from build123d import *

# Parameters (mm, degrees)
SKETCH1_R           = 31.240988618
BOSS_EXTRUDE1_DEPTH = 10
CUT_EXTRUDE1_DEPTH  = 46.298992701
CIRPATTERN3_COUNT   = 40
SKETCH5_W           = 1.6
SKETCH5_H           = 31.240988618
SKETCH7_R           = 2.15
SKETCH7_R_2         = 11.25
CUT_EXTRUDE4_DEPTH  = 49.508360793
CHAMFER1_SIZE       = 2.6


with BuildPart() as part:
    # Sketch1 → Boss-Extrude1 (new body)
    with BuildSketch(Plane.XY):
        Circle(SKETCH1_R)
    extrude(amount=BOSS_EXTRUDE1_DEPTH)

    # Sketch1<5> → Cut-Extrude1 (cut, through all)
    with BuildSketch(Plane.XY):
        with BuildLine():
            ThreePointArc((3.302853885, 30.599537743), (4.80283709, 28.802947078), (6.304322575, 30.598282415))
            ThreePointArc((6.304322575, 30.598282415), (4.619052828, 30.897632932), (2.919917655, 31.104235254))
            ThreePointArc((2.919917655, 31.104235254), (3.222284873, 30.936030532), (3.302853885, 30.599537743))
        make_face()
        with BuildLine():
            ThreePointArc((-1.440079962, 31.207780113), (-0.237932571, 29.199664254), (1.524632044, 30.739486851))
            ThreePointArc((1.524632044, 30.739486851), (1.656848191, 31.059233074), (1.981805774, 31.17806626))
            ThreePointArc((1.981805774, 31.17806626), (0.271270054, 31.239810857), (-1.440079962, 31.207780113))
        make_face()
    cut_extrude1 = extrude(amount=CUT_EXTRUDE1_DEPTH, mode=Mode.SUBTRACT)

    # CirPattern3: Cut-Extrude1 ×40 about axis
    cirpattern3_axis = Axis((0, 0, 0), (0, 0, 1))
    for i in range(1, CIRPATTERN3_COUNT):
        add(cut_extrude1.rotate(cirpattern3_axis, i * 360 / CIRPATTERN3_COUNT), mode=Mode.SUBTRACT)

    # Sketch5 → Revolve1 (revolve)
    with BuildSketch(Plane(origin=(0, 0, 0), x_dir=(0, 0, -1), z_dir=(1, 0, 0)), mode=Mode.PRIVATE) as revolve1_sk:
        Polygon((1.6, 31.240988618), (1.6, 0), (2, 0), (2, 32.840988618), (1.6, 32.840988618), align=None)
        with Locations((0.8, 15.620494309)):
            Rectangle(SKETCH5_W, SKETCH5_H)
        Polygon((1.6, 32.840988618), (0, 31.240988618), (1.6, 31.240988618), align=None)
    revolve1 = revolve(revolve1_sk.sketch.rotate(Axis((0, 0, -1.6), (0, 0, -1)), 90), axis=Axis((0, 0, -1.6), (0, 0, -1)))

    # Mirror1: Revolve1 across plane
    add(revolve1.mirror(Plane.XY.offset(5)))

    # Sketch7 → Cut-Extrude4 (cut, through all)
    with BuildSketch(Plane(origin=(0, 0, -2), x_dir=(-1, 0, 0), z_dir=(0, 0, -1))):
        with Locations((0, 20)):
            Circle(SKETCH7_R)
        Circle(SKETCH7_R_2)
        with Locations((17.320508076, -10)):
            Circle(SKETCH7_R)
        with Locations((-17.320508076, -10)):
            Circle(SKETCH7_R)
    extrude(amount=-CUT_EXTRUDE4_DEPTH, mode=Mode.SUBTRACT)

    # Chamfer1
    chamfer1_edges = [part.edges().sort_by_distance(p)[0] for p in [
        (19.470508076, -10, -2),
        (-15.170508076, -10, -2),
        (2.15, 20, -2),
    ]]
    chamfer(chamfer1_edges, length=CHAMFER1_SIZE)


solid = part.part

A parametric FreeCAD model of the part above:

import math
import FreeCAD as App
import Part
import Sketcher
Q = App.Units.Quantity


def edges_at(feature, points):
    """Names of the edges that pass closest to the given points."""
    edges = feature.Shape.Edges
    near = lambda p: min(range(len(edges)), key=lambda i: edges[i].distToShape(Part.Vertex(*p))[0])
    return sorted({f"Edge{near(p) + 1}" for p in points})


def add_polygon(sketch, points):
    """Adds a closed chain of lines whose ends are joined by coincident constraints."""
    first, n = sketch.GeometryCount, len(points)
    for a, b in zip(points, points[1:] + points[:1]):
        sketch.addGeometry(Part.LineSegment(App.Vector(*a, 0), App.Vector(*b, 0)), False)
    for i in range(n):
        sketch.addConstraint(Sketcher.Constraint("Coincident", first + i, 2, first + (i + 1) % n, 1))

doc = App.newDocument("Part")
body = doc.addObject("PartDesign::Body", "Body")

sketch1 = doc.addObject("Sketcher::SketchObject", "Sketch")
body.addObject(sketch1)
sketch1.AttachmentSupport = (doc.XY_Plane, [""])
sketch1.MapMode = "FlatFace"
sketch1.addGeometry(Part.Circle(App.Vector(0, 0, 0), App.Vector(0, 0, 1), 31.240989), False)
sketch1.addConstraint(Sketcher.Constraint("Coincident", 0, 3, -1, 1))
sketch1.addConstraint(Sketcher.Constraint("Diameter", 0, 62.481977))
pad1 = doc.addObject("PartDesign::Pad", "Pad")
body.addObject(pad1)
pad1.Profile = sketch1
pad1.Length = 10

sketch2 = doc.addObject("Sketcher::SketchObject", "Sketch001")
body.addObject(sketch2)
sketch2.AttachmentSupport = (doc.XY_Plane, [""])
sketch2.MapMode = "FlatFace"
sketch2.addGeometry(Part.ArcOfCircle(Part.Circle(App.Vector(4.803475, 30.327947, 0), App.Vector(0, 0, 1), 1.525), math.radians(169.741337), math.radians(370.210736)), False)
sketch2.addGeometry(Part.ArcOfCircle(Part.Circle(App.Vector(0, 0, 0), App.Vector(0, 0, 1), 31.240989), math.radians(78.357966), math.radians(84.637062)), False)
sketch2.addGeometry(Part.ArcOfCircle(Part.Circle(App.Vector(2.879728, 30.676118, 0), App.Vector(0, 0, 1), 0.43), math.radians(-10.258674), math.radians(84.637058)), False)
sketch2.addGeometry(Part.ArcOfCircle(Part.Circle(App.Vector(0, 30.705989, 0), App.Vector(0, 0, 1), 1.525), math.radians(160.789264), math.radians(361.258663)), False)
sketch2.addGeometry(Part.ArcOfCircle(Part.Circle(App.Vector(1.954528, 30.748932, 0), App.Vector(0, 0, 1), 0.43), math.radians(86.362942), math.radians(181.258672)), False)
sketch2.addGeometry(Part.ArcOfCircle(Part.Circle(App.Vector(0, 0, 0), App.Vector(0, 0, 1), 31.240989), math.radians(86.362938), math.radians(92.642034)), False)
sketch2.addConstraint(Sketcher.Constraint("Coincident", 0, 2, 1, 1))
sketch2.addConstraint(Sketcher.Constraint("Tangent", 1, 2, 2, 2))
sketch2.addConstraint(Sketcher.Constraint("Tangent", 2, 1, 0, 1))
sketch2.addConstraint(Sketcher.Constraint("Tangent", 3, 2, 4, 2))
sketch2.addConstraint(Sketcher.Constraint("Tangent", 4, 1, 5, 1))
sketch2.addConstraint(Sketcher.Constraint("Coincident", 5, 2, 3, 1))
sketch2.addConstraint(Sketcher.Constraint("Coincident", 1, 3, -1, 1))
sketch2.addConstraint(Sketcher.Constraint("Coincident", 5, 3, -1, 1))
sketch2.addConstraint(Sketcher.Constraint("Equal", 0, 3))
sketch2.addConstraint(Sketcher.Constraint("Equal", 2, 4))
sketch2.addConstraint(Sketcher.Constraint("Equal", 1, 5))
sketch2.addConstraint(Sketcher.Constraint("PointOnObject", 3, 3, -2))
sketch2.addConstraint(Sketcher.Constraint("Radius", 2, 0.43))
sketch2.addConstraint(Sketcher.Constraint("Radius", 0, 1.525))
sketch2.addConstraint(Sketcher.Constraint("Radius", 1, 31.240989))
sketch2.addConstraint(Sketcher.Constraint("DistanceX", 4, 3, 2, 3, 0.9252))
sketch2.addConstraint(Sketcher.Constraint("DistanceY", 3, 3, 3, 2, 0.033498))
sketch2.addConstraint(Sketcher.Constraint("DistanceY", 0, 3, 2, 3, 0.348171))
pocket1 = doc.addObject("PartDesign::Pocket", "Pocket")
body.addObject(pocket1)
pocket1.Profile = sketch2
pocket1.Type = "ThroughAll"
pocket1.Reversed = True
doc.recompute()

polarpattern = doc.addObject("PartDesign::PolarPattern", "PolarPattern")
body.addObject(polarpattern)
polarpattern.Originals = [pocket1]
polarpattern.Axis = (doc.Z_Axis, [""])
polarpattern.Angle = 360
polarpattern.Occurrences = 40
body.Tip = polarpattern

sketch3 = doc.addObject("Sketcher::SketchObject", "Sketch002")
body.addObject(sketch3)
sketch3.AttachmentSupport = (doc.YZ_Plane, [""])
sketch3.MapMode = "FlatFace"
add_polygon(sketch3, [(0, -2), (32.840989, -2), (32.840989, -1.6), (31.240989, 0), (0, 0)])
sketch3.addConstraint(Sketcher.Constraint("Horizontal", 0))
sketch3.addConstraint(Sketcher.Constraint("Vertical", 1))
sketch3.addConstraint(Sketcher.Constraint("Horizontal", 3))
sketch3.addConstraint(Sketcher.Constraint("Vertical", 4))
sketch3.addConstraint(Sketcher.Constraint("Coincident", 3, 2, -1, 1))
sketch3.addConstraint(Sketcher.Constraint("DistanceY", 4, 2, 4, 1, 2.0))
sketch3.addConstraint(Sketcher.Constraint("Angle", 2, Q("135 deg")))
sketch3.addConstraint(Sketcher.Constraint("DistanceY", 1, 1, 1, 2, 0.4))
sketch3.addConstraint(Sketcher.Constraint("DistanceX", 0, 1, 0, 2, 32.840989))
revolution = doc.addObject("PartDesign::Revolution", "Revolution")
body.addObject(revolution)
revolution.Profile = sketch3
revolution.ReferenceAxis = (sketch3, ["V_Axis"])
revolution.Angle = 360
doc.recompute()

datumplane = doc.addObject("PartDesign::Plane", "DatumPlane")
body.addObject(datumplane)
datumplane.AttachmentSupport = (doc.XY_Plane, [""])
datumplane.MapMode = "FlatFace"
datumplane.AttachmentOffset = App.Placement(App.Vector(0, 0, 5), App.Rotation())
mirrored = doc.addObject("PartDesign::Mirrored", "Mirrored")
body.addObject(mirrored)
mirrored.Originals = [revolution]
mirrored.MirrorPlane = (datumplane, [""])
body.Tip = mirrored

sketch4 = doc.addObject("Sketcher::SketchObject", "Sketch003")
body.addObject(sketch4)
sketch4.AttachmentSupport = (doc.XY_Plane, [""])
sketch4.MapMode = "FlatFace"
sketch4.AttachmentOffset = App.Placement(App.Vector(0, 0, -2), App.Rotation())
sketch4.addGeometry(Part.Circle(App.Vector(0, 20, 0), App.Vector(0, 0, 1), 2.15), False)
sketch4.addGeometry(Part.Circle(App.Vector(0, 0, 0), App.Vector(0, 0, 1), 11.25), False)
sketch4.addGeometry(Part.Circle(App.Vector(-17.320508, -10, 0), App.Vector(0, 0, 1), 2.15), False)
sketch4.addGeometry(Part.Circle(App.Vector(17.320508, -10, 0), App.Vector(0, 0, 1), 2.15), False)
sketch4.addConstraint(Sketcher.Constraint("Coincident", 1, 3, -1, 1))
sketch4.addConstraint(Sketcher.Constraint("Equal", 0, 2))
sketch4.addConstraint(Sketcher.Constraint("Equal", 2, 3))
sketch4.addConstraint(Sketcher.Constraint("Symmetric", 2, 3, 3, 3, -2))
sketch4.addConstraint(Sketcher.Constraint("PointOnObject", 0, 3, -2))
sketch4.addConstraint(Sketcher.Constraint("Diameter", 0, 4.3))
sketch4.addConstraint(Sketcher.Constraint("Diameter", 1, 22.5))
sketch4.addConstraint(Sketcher.Constraint("DistanceY", -1, 1, 0, 3, 20.0))
sketch4.addConstraint(Sketcher.Constraint("DistanceY", 2, 3, -1, 1, 10.0))
sketch4.addConstraint(Sketcher.Constraint("DistanceX", 2, 3, -1, 1, 17.320508))
pocket2 = doc.addObject("PartDesign::Pocket", "Pocket001")
body.addObject(pocket2)
pocket2.Profile = sketch4
pocket2.Type = "ThroughAll"
pocket2.Reversed = True
doc.recompute()

chamfer = doc.addObject("PartDesign::Chamfer", "Chamfer")
body.addObject(chamfer)
chamfer.Base = (pocket2, edges_at(pocket2, [(19.471, -10, -2), (-15.171, -10, -2), (2.15, 20, -2)]))
chamfer.Size = 2.6

doc.recompute()
